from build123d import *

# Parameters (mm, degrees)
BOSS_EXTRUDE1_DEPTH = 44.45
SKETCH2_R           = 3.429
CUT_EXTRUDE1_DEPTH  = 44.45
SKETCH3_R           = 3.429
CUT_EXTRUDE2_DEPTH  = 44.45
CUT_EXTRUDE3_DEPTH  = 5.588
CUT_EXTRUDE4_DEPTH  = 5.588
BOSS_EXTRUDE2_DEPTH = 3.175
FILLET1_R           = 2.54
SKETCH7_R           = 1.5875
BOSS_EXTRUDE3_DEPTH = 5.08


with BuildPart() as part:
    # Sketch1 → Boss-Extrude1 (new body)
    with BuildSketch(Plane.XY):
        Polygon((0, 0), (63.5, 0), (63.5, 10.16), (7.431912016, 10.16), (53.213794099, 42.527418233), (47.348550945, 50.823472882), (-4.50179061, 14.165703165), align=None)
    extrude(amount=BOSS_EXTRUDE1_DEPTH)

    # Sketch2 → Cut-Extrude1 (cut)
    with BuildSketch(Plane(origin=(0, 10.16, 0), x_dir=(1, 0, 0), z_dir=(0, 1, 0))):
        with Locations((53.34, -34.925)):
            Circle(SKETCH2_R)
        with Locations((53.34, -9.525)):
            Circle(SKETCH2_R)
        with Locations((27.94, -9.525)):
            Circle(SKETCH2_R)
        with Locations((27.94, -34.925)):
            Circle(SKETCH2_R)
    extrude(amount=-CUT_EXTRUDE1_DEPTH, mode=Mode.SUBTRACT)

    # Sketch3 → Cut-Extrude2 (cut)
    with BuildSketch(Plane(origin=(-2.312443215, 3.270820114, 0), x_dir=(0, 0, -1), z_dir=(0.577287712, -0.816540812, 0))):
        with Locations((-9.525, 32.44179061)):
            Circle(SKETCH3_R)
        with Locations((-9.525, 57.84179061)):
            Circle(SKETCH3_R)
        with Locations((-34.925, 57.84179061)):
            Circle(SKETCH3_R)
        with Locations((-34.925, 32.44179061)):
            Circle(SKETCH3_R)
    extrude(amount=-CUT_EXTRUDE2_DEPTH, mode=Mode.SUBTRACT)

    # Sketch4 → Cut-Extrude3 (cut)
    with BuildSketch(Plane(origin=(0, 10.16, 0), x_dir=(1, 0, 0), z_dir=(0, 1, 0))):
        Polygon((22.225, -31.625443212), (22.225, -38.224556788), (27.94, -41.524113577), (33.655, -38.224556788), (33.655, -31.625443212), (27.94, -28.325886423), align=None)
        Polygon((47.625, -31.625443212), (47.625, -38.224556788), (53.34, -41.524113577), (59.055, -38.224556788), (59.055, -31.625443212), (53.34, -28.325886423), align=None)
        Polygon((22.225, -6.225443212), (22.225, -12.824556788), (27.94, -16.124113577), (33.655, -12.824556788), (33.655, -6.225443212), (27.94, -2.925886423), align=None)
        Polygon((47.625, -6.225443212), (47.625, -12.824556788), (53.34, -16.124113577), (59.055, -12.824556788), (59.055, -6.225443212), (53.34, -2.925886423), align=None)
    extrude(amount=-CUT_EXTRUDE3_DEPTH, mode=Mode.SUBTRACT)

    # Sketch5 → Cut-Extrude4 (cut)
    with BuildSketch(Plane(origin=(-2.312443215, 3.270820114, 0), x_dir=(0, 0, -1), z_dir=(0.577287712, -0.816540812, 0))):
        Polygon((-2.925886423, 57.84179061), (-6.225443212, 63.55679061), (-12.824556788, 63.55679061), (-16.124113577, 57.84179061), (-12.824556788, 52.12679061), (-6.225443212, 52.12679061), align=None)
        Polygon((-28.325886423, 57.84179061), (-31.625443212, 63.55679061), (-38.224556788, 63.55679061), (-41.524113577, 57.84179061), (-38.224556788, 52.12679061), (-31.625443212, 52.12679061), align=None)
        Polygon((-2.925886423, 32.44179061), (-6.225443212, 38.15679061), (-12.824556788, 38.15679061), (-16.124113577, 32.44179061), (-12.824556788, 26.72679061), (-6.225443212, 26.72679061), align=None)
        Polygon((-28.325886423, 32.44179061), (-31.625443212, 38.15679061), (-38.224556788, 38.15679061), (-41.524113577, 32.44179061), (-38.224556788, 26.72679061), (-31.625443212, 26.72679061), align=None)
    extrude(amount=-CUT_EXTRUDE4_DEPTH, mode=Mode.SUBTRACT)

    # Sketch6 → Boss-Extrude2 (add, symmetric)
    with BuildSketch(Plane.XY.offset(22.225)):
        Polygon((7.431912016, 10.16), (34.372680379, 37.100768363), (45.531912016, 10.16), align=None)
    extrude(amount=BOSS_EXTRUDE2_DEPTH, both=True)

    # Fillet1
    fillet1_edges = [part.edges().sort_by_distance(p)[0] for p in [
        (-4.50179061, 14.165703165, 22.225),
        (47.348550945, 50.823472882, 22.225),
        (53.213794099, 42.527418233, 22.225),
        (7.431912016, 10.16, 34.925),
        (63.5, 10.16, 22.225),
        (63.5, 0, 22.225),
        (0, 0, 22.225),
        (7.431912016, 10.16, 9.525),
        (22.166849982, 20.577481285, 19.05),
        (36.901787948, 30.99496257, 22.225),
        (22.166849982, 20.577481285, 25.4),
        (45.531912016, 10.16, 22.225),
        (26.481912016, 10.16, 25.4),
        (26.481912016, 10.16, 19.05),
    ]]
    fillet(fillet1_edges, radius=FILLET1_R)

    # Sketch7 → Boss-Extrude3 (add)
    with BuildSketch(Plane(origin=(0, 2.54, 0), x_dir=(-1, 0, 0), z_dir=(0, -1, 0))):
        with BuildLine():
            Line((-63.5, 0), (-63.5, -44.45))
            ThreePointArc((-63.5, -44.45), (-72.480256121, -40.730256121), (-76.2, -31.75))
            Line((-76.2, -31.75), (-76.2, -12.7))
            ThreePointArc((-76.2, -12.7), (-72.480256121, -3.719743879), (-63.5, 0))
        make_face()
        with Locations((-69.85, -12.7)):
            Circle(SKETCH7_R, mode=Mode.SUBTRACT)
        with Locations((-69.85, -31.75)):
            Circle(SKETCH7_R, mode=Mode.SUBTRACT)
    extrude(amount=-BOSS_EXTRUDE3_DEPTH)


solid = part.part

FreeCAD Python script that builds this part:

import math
import FreeCAD as App
import Part
import Sketcher
Q = App.Units.Quantity


def edges_at(feature, points):
    """Names of the edges that pass closest to the given points."""
    edges = feature.Shape.Edges
    near = lambda p: min(range(len(edges)), key=lambda i: edges[i].distToShape(Part.Vertex(*p))[0])
    return sorted({f"Edge{near(p) + 1}" for p in points})

doc = App.newDocument("Part")
body = doc.addObject("PartDesign::Body", "Body")

sketch1 = body.newObject("Sketcher::SketchObject", "Sketch")
sketch1.AttachmentSupport = (doc.getObject("XY_Plane"), [""])
sketch1.MapMode = "FlatFace"
sketch1.addGeometry([
    Part.LineSegment(App.Vector(0, 0, 0), App.Vector(63.5, 0, 0)),
    Part.LineSegment(App.Vector(63.5, 0, 0), App.Vector(63.5, 10.16, 0)),
    Part.LineSegment(App.Vector(63.5, 10.16, 0), App.Vector(7.431912, 10.16, 0)),
    Part.LineSegment(App.Vector(7.431912, 10.16, 0), App.Vector(53.213794, 42.527418, 0)),
    Part.LineSegment(App.Vector(53.213794, 42.527418, 0), App.Vector(47.348551, 50.823473, 0)),
    Part.LineSegment(App.Vector(47.348551, 50.823473, 0), App.Vector(-4.501791, 14.165703, 0)),
    Part.LineSegment(App.Vector(-4.501791, 14.165703, 0), App.Vector(0, 0, 0)),
], False)
sketch1.addConstraint([
    Sketcher.Constraint("Coincident", 0, 2, 1, 1),
    Sketcher.Constraint("Coincident", 1, 2, 2, 1),
    Sketcher.Constraint("Coincident", 2, 2, 3, 1),
    Sketcher.Constraint("Coincident", 3, 2, 4, 1),
    Sketcher.Constraint("Coincident", 4, 2, 5, 1),
    Sketcher.Constraint("Coincident", 5, 2, 6, 1),
    Sketcher.Constraint("Coincident", 6, 2, 0, 1),
    Sketcher.Constraint("Horizontal", 0),
    Sketcher.Constraint("Vertical", 1),
    Sketcher.Constraint("Horizontal", 2),
    Sketcher.Constraint("Coincident", 6, 2, -1, 1),
    Sketcher.Constraint("Perpendicular", 3, 4),
    Sketcher.Constraint("Perpendicular", 4, 5),
    Sketcher.Constraint("DistanceX", 0, 1, 0, 2, Q("2.5 in")),
    Sketcher.Constraint("DistanceY", 1, 1, 1, 2, Q("0.4 in")),
    Sketcher.Constraint("Distance", 4, Q("0.4 in")),
    Sketcher.Constraint("Distance", 5, Q("2.5 in")),
    Sketcher.Constraint("Angle", 3, Q("35.26 deg")),
    Sketcher.Constraint("Angle", 6, Q("-72.37 deg")),
    Sketcher.Constraint("DistanceX", 2, 2, 2, 1, Q("56.068088 mm")),
])
pad1 = body.newObject("PartDesign::Pad", "Pad")
pad1.Profile = sketch1
pad1.Length = Q("1.75 in")

sketch2 = body.newObject("Sketcher::SketchObject", "Sketch001")
sketch2.AttachmentSupport = (doc.getObject("XZ_Plane"), [""])
sketch2.MapMode = "FlatFace"
sketch2.AttachmentOffset = App.Placement(App.Vector(0, 0, -0.4 * 25.4), App.Rotation())
sketch2.addGeometry([
    Part.Circle(App.Vector(53.34, 34.925, 0), App.Vector(0, 0, 1), 3.429),
    Part.Circle(App.Vector(53.34, 9.525, 0), App.Vector(0, 0, 1), 3.429),
    Part.Circle(App.Vector(27.94, 9.525, 0), App.Vector(0, 0, 1), 3.429),
    Part.Circle(App.Vector(27.94, 34.925, 0), App.Vector(0, 0, 1), 3.429),
], False)
sketch2.addConstraint([
    Sketcher.Constraint("Equal", 0, 1),
    Sketcher.Constraint("Equal", 1, 2),
    Sketcher.Constraint("Equal", 2, 3),
    Sketcher.Constraint("Horizontal", 1, 3, 2, 3),
    Sketcher.Constraint("Horizontal", 0, 3, 3, 3),
    Sketcher.Constraint("Vertical", 0, 3, 1, 3),
    Sketcher.Constraint("Vertical", 2, 3, 3, 3),
    Sketcher.Constraint("Diameter", 0, Q("0.27 in")),
    Sketcher.Constraint("DistanceY", 1, 3, 0, 3, Q("1 in")),
    Sketcher.Constraint("DistanceX", 2, 3, 1, 3, Q("1 in")),
    Sketcher.Constraint("DistanceX", -1, 1, 0, 3, Q("2.1 in")),
    Sketcher.Constraint("DistanceY", -1, 1, 0, 3, Q("1.375 in")),
])
pocket1 = body.newObject("PartDesign::Pocket", "Pocket")
pocket1.Profile = sketch2
pocket1.Length = Q("1.75 in")
pocket1.Reversed = True

sketch3 = body.newObject("Sketcher::SketchObject", "Sketch002")
sketch3.Placement = App.Placement(App.Vector(-2.312443, 3.27082, 0), App.Rotation(App.Vector(0, 0, -1), App.Vector(0.816540812, 0.577287712, 0), App.Vector(0.577287712, -0.816540812, 0), "ZXY"))
sketch3.addGeometry([
    Part.Circle(App.Vector(-9.525, 32.441791, 0), App.Vector(0, 0, 1), 3.429),
    Part.Circle(App.Vector(-9.525, 57.841791, 0), App.Vector(0, 0, 1), 3.429),
    Part.Circle(App.Vector(-34.925, 57.841791, 0), App.Vector(0, 0, 1), 3.429),
    Part.Circle(App.Vector(-34.925, 32.441791, 0), App.Vector(0, 0, 1), 3.429),
], False)
sketch3.addConstraint([
    Sketcher.Constraint("Equal", 0, 1),
    Sketcher.Constraint("Equal", 1, 2),
    Sketcher.Constraint("Equal", 2, 3),
    Sketcher.Constraint("Horizontal", 1, 3, 2, 3),
    Sketcher.Constraint("Horizontal", 0, 3, 3, 3),
    Sketcher.Constraint("Vertical", 0, 3, 1, 3),
    Sketcher.Constraint("Vertical", 2, 3, 3, 3),
    Sketcher.Constraint("Diameter", 0, Q("0.27 in")),
    Sketcher.Constraint("DistanceY", 0, 3, 1, 3, Q("1 in")),
    Sketcher.Constraint("DistanceX", 2, 3, 1, 3, Q("1 in")),
    Sketcher.Constraint("DistanceX", 0, 3, -1, 1, Q("0.375 in")),
    Sketcher.Constraint("DistanceY", -1, 1, 0, 3, Q("32.441791 mm")),
])
pocket2 = body.newObject("PartDesign::Pocket", "Pocket001")
pocket2.Profile = sketch3
pocket2.Length = Q("1.75 in")

sketch4 = body.newObject("Sketcher::SketchObject", "Sketch003")
sketch4.AttachmentSupport = (doc.getObject("XZ_Plane"), [""])
sketch4.MapMode = "FlatFace"
sketch4.AttachmentOffset = App.Placement(App.Vector(0, 0, -0.4 * 25.4), App.Rotation())
sketch4.addGeometry([
    Part.LineSegment(App.Vector(22.225, 31.625443, 0), App.Vector(22.225, 38.224557, 0)),
    Part.LineSegment(App.Vector(22.225, 38.224557, 0), App.Vector(27.94, 41.524114, 0)),
    Part.LineSegment(App.Vector(27.94, 41.524114, 0), App.Vector(33.655, 38.224557, 0)),
    Part.LineSegment(App.Vector(33.655, 38.224557, 0), App.Vector(33.655, 31.625443, 0)),
    Part.LineSegment(App.Vector(33.655, 31.625443, 0), App.Vector(27.94, 28.325886, 0)),
    Part.LineSegment(App.Vector(27.94, 28.325886, 0), App.Vector(22.225, 31.625443, 0)),
    Part.LineSegment(App.Vector(47.625, 31.625443, 0), App.Vector(47.625, 38.224557, 0)),
    Part.LineSegment(App.Vector(47.625, 38.224557, 0), App.Vector(53.34, 41.524114, 0)),
    Part.LineSegment(App.Vector(53.34, 41.524114, 0), App.Vector(59.055, 38.224557, 0)),
    Part.LineSegment(App.Vector(59.055, 38.224557, 0), App.Vector(59.055, 31.625443, 0)),
    Part.LineSegment(App.Vector(59.055, 31.625443, 0), App.Vector(53.34, 28.325886, 0)),
    Part.LineSegment(App.Vector(53.34, 28.325886, 0), App.Vector(47.625, 31.625443, 0)),
    Part.LineSegment(App.Vector(22.225, 6.225443, 0), App.Vector(22.225, 12.824557, 0)),
    Part.LineSegment(App.Vector(22.225, 12.824557, 0), App.Vector(27.94, 16.124114, 0)),
    Part.LineSegment(App.Vector(27.94, 16.124114, 0), App.Vector(33.655, 12.824557, 0)),
    Part.LineSegment(App.Vector(33.655, 12.824557, 0), App.Vector(33.655, 6.225443, 0)),
    Part.LineSegment(App.Vector(33.655, 6.225443, 0), App.Vector(27.94, 2.925886, 0)),
    Part.LineSegment(App.Vector(27.94, 2.925886, 0), App.Vector(22.225, 6.225443, 0)),
    Part.LineSegment(App.Vector(47.625, 6.225443, 0), App.Vector(47.625, 12.824557, 0)),
    Part.LineSegment(App.Vector(47.625, 12.824557, 0), App.Vector(53.34, 16.124114, 0)),
    Part.LineSegment(App.Vector(53.34, 16.124114, 0), App.Vector(59.055, 12.824557, 0)),
    Part.LineSegment(App.Vector(59.055, 12.824557, 0), App.Vector(59.055, 6.225443, 0)),
    Part.LineSegment(App.Vector(59.055, 6.225443, 0), App.Vector(53.34, 2.925886, 0)),
    Part.LineSegment(App.Vector(53.34, 2.925886, 0), App.Vector(47.625, 6.225443, 0)),
], False)
sketch4.addConstraint([
    Sketcher.Constraint("Coincident", 0, 2, 1, 1),
    Sketcher.Constraint("Coincident", 1, 2, 2, 1),
    Sketcher.Constraint("Coincident", 2, 2, 3, 1),
    Sketcher.Constraint("Coincident", 3, 2, 4, 1),
    Sketcher.Constraint("Coincident", 4, 2, 5, 1),
    Sketcher.Constraint("Coincident", 5, 2, 0, 1),
    Sketcher.Constraint("Coincident", 6, 2, 7, 1),
    Sketcher.Constraint("Coincident", 7, 2, 8, 1),
    Sketcher.Constraint("Coincident", 8, 2, 9, 1),
    Sketcher.Constraint("Coincident", 9, 2, 10, 1),
    Sketcher.Constraint("Coincident", 10, 2, 11, 1),
    Sketcher.Constraint("Coincident", 11, 2, 6, 1),
    Sketcher.Constraint("Coincident", 12, 2, 13, 1),
    Sketcher.Constraint("Coincident", 13, 2, 14, 1),
    Sketcher.Constraint("Coincident", 14, 2, 15, 1),
    Sketcher.Constraint("Coincident", 15, 2, 16, 1),
    Sketcher.Constraint("Coincident", 16, 2, 17, 1),
    Sketcher.Constraint("Coincident", 17, 2, 12, 1),
    Sketcher.Constraint("Coincident", 18, 2, 19, 1),
    Sketcher.Constraint("Coincident", 19, 2, 20, 1),
    Sketcher.Constraint("Coincident", 20, 2, 21, 1),
    Sketcher.Constraint("Coincident", 21, 2, 22, 1),
    Sketcher.Constraint("Coincident", 22, 2, 23, 1),
    Sketcher.Constraint("Coincident", 23, 2, 18, 1),
    Sketcher.Constraint("Vertical", 0),
    Sketcher.Constraint("Vertical", 3),
    Sketcher.Constraint("Vertical", 6),
    Sketcher.Constraint("Vertical", 9),
    Sketcher.Constraint("Vertical", 12),
    Sketcher.Constraint("Vertical", 15),
    Sketcher.Constraint("Vertical", 18),
    Sketcher.Constraint("Vertical", 21),
    Sketcher.Constraint("Parallel", 1, 4),
    Sketcher.Constraint("Parallel", 2, 5),
    Sketcher.Constraint("Parallel", 4, 7),
    Sketcher.Constraint("Parallel", 5, 8),
    Sketcher.Constraint("Parallel", 7, 10),
    Sketcher.Constraint("Parallel", 8, 11),
    Sketcher.Constraint("Parallel", 10, 13),
    Sketcher.Constraint("Parallel", 11, 14),
    Sketcher.Constraint("Parallel", 13, 16),
    Sketcher.Constraint("Parallel", 14, 17),
    Sketcher.Constraint("Parallel", 16, 19),
    Sketcher.Constraint("Parallel", 17, 20),
    Sketcher.Constraint("Parallel", 19, 22),
    Sketcher.Constraint("Parallel", 20, 23),
    Sketcher.Constraint("Horizontal", 0, 2, 2, 2),
    Sketcher.Constraint("Horizontal", 3, 2, 5, 2),
    Sketcher.Constraint("Horizontal", 2, 2, 6, 2),
    Sketcher.Constraint("Horizontal", 1, 2, 7, 2),
    Sketcher.Constraint("Horizontal", 6, 2, 8, 2),
    Sketcher.Constraint("Horizontal", 5, 2, 9, 2),
    Sketcher.Constraint("Horizontal", 4, 2, 10, 2),
    Sketcher.Constraint("Horizontal", 12, 2, 14, 2),
    Sketcher.Constraint("Horizontal", 15, 2, 17, 2),
    Sketcher.Constraint("Horizontal", 14, 2, 18, 2),
    Sketcher.Constraint("Horizontal", 13, 2, 19, 2),
    Sketcher.Constraint("Horizontal", 18, 2, 20, 2),
    Sketcher.Constraint("Horizontal", 17, 2, 21, 2),
    Sketcher.Constraint("Horizontal", 16, 2, 22, 2),
    Sketcher.Constraint("Vertical", 1, 2, 4, 2),
    Sketcher.Constraint("Vertical", 5, 2, 12, 2),
    Sketcher.Constraint("Vertical", 4, 2, 13, 2),
    Sketcher.Constraint("Vertical", 11, 2, 18, 2),
    Sketcher.Constraint("Equal", 9, 12),
    Sketcher.Constraint("Angle", 1, Q("30 deg")),
    Sketcher.Constraint("DistanceX", 0, 2, 6, 2, Q("1 in")),
    Sketcher.Constraint("DistanceY", 12, 2, 0, 2, Q("1 in")),
    Sketcher.Constraint("DistanceX", -1, 1, 1, 2, Q("1.1 in")),
    Sketcher.Constraint("DistanceX", 0, 2, 2, 2, Q("0.45 in")),
    Sketcher.Constraint("DistanceY", 0, 1, 0, 2, Q("6.599114 mm")),
    Sketcher.Constraint("DistanceY", -1, 1, 0, 2, Q("38.224557 mm")),
])
pocket3 = body.newObject("PartDesign::Pocket", "Pocket002")
pocket3.Profile = sketch4
pocket3.Length = Q("0.22 in")
pocket3.Reversed = True

sketch5 = body.newObject("Sketcher::SketchObject", "Sketch004")
sketch5.Placement = App.Placement(App.Vector(-2.312443, 3.27082, 0), App.Rotation(App.Vector(0, 0, -1), App.Vector(0.816540812, 0.577287712, 0), App.Vector(0.577287712, -0.816540812, 0), "ZXY"))
sketch5.addGeometry([
    Part.LineSegment(App.Vector(-2.925886, 57.841791, 0), App.Vector(-6.225443, 63.556791, 0)),
    Part.LineSegment(App.Vector(-6.225443, 63.556791, 0), App.Vector(-12.824557, 63.556791, 0)),
    Part.LineSegment(App.Vector(-12.824557, 63.556791, 0), App.Vector(-16.124114, 57.841791, 0)),
    Part.LineSegment(App.Vector(-16.124114, 57.841791, 0), App.Vector(-12.824557, 52.126791, 0)),
    Part.LineSegment(App.Vector(-12.824557, 52.126791, 0), App.Vector(-6.225443, 52.126791, 0)),
    Part.LineSegment(App.Vector(-6.225443, 52.126791, 0), App.Vector(-2.925886, 57.841791, 0)),
    Part.LineSegment(App.Vector(-28.325886, 57.841791, 0), App.Vector(-31.625443, 63.556791, 0)),
    Part.LineSegment(App.Vector(-31.625443, 63.556791, 0), App.Vector(-38.224557, 63.556791, 0)),
    Part.LineSegment(App.Vector(-38.224557, 63.556791, 0), App.Vector(-41.524114, 57.841791, 0)),
    Part.LineSegment(App.Vector(-41.524114, 57.841791, 0), App.Vector(-38.224557, 52.126791, 0)),
    Part.LineSegment(App.Vector(-38.224557, 52.126791, 0), App.Vector(-31.625443, 52.126791, 0)),
    Part.LineSegment(App.Vector(-31.625443, 52.126791, 0), App.Vector(-28.325886, 57.841791, 0)),
    Part.LineSegment(App.Vector(-2.925886, 32.441791, 0), App.Vector(-6.225443, 38.156791, 0)),
    Part.LineSegment(App.Vector(-6.225443, 38.156791, 0), App.Vector(-12.824557, 38.156791, 0)),
    Part.LineSegment(App.Vector(-12.824557, 38.156791, 0), App.Vector(-16.124114, 32.441791, 0)),
    Part.LineSegment(App.Vector(-16.124114, 32.441791, 0), App.Vector(-12.824557, 26.726791, 0)),
    Part.LineSegment(App.Vector(-12.824557, 26.726791, 0), App.Vector(-6.225443, 26.726791, 0)),
    Part.LineSegment(App.Vector(-6.225443, 26.726791, 0), App.Vector(-2.925886, 32.441791, 0)),
    Part.LineSegment(App.Vector(-28.325886, 32.441791, 0), App.Vector(-31.625443, 38.156791, 0)),
    Part.LineSegment(App.Vector(-31.625443, 38.156791, 0), App.Vector(-38.224557, 38.156791, 0)),
    Part.LineSegment(App.Vector(-38.224557, 38.156791, 0), App.Vector(-41.524114, 32.441791, 0)),
    Part.LineSegment(App.Vector(-41.524114, 32.441791, 0), App.Vector(-38.224557, 26.726791, 0)),
    Part.LineSegment(App.Vector(-38.224557, 26.726791, 0), App.Vector(-31.625443, 26.726791, 0)),
    Part.LineSegment(App.Vector(-31.625443, 26.726791, 0), App.Vector(-28.325886, 32.441791, 0)),
], False)
sketch5.addConstraint([
    Sketcher.Constraint("Coincident", 0, 2, 1, 1),
    Sketcher.Constraint("Coincident", 1, 2, 2, 1),
    Sketcher.Constraint("Coincident", 2, 2, 3, 1),
    Sketcher.Constraint("Coincident", 3, 2, 4, 1),
    Sketcher.Constraint("Coincident", 4, 2, 5, 1),
    Sketcher.Constraint("Coincident", 5, 2, 0, 1),
    Sketcher.Constraint("Coincident", 6, 2, 7, 1),
    Sketcher.Constraint("Coincident", 7, 2, 8, 1),
    Sketcher.Constraint("Coincident", 8, 2, 9, 1),
    Sketcher.Constraint("Coincident", 9, 2, 10, 1),
    Sketcher.Constraint("Coincident", 10, 2, 11, 1),
    Sketcher.Constraint("Coincident", 11, 2, 6, 1),
    Sketcher.Constraint("Coincident", 12, 2, 13, 1),
    Sketcher.Constraint("Coincident", 13, 2, 14, 1),
    Sketcher.Constraint("Coincident", 14, 2, 15, 1),
    Sketcher.Constraint("Coincident", 15, 2, 16, 1),
    Sketcher.Constraint("Coincident", 16, 2, 17, 1),
    Sketcher.Constraint("Coincident", 17, 2, 12, 1),
    Sketcher.Constraint("Coincident", 18, 2, 19, 1),
    Sketcher.Constraint("Coincident", 19, 2, 20, 1),
    Sketcher.Constraint("Coincident", 20, 2, 21, 1),
    Sketcher.Constraint("Coincident", 21, 2, 22, 1),
    Sketcher.Constraint("Coincident", 22, 2, 23, 1),
    Sketcher.Constraint("Coincident", 23, 2, 18, 1),
    Sketcher.Constraint("Horizontal", 1),
    Sketcher.Constraint("Horizontal", 4),
    Sketcher.Constraint("Horizontal", 7),
    Sketcher.Constraint("Horizontal", 10),
    Sketcher.Constraint("Horizontal", 13),
    Sketcher.Constraint("Horizontal", 16),
    Sketcher.Constraint("Horizontal", 19),
    Sketcher.Constraint("Horizontal", 22),
    Sketcher.Constraint("Parallel", 0, 3),
    Sketcher.Constraint("Parallel", 2, 5),
    Sketcher.Constraint("Parallel", 3, 6),
    Sketcher.Constraint("Parallel", 5, 8),
    Sketcher.Constraint("Parallel", 6, 9),
    Sketcher.Constraint("Parallel", 8, 11),
    Sketcher.Constraint("Parallel", 9, 12),
    Sketcher.Constraint("Parallel", 11, 14),
    Sketcher.Constraint("Parallel", 12, 15),
    Sketcher.Constraint("Parallel", 14, 17),
    Sketcher.Constraint("Parallel", 15, 18),
    Sketcher.Constraint("Parallel", 17, 20),
    Sketcher.Constraint("Parallel", 18, 21),
    Sketcher.Constraint("Parallel", 20, 23),
    Sketcher.Constraint("Horizontal", 2, 2, 5, 2),
    Sketcher.Constraint("Horizontal", 1, 2, 6, 2),
    Sketcher.Constraint("Horizontal", 5, 2, 8, 2),
    Sketcher.Constraint("Horizontal", 4, 2, 9, 2),
    Sketcher.Constraint("Horizontal", 8, 2, 11, 2),
    Sketcher.Constraint("Horizontal", 14, 2, 17, 2),
    Sketcher.Constraint("Horizontal", 13, 2, 18, 2),
    Sketcher.Constraint("Horizontal", 17, 2, 20, 2),
    Sketcher.Constraint("Horizontal", 16, 2, 21, 2),
    Sketcher.Constraint("Horizontal", 20, 2, 23, 2),
    Sketcher.Constraint("Vertical", 1, 2, 3, 2),
    Sketcher.Constraint("Vertical", 0, 2, 4, 2),
    Sketcher.Constraint("Vertical", 4, 2, 12, 2),
    Sketcher.Constraint("Vertical", 3, 2, 13, 2),
    Sketcher.Constraint("Vertical", 2, 2, 14, 2),
    Sketcher.Constraint("Vertical", 13, 2, 15, 2),
    Sketcher.Constraint("Vertical", 10, 2, 18, 2),
    Sketcher.Constraint("Vertical", 9, 2, 19, 2),
    Sketcher.Constraint("Equal", 4, 7),
    Sketcher.Constraint("Angle", 0, Q("120 deg")),
    Sketcher.Constraint("DistanceX", 6, 2, 0, 2, Q("1 in")),
    Sketcher.Constraint("DistanceY", 12, 2, 0, 2, Q("1 in")),
    Sketcher.Constraint("DistanceY", 3, 2, 1, 2, Q("0.45 in")),
    Sketcher.Constraint("DistanceX", 1, 2, 1, 1, Q("6.599114 mm")),
    Sketcher.Constraint("DistanceY", -1, 1, 0, 2, Q("63.556791 mm")),
    Sketcher.Constraint("DistanceX", 0, 2, -1, 1, Q("6.225443 mm")),
])
pocket4 = body.newObject("PartDesign::Pocket", "Pocket003")
pocket4.Profile = sketch5
pocket4.Length = Q("0.22 in")

sketch6 = body.newObject("Sketcher::SketchObject", "Sketch005")
sketch6.AttachmentSupport = (doc.getObject("XY_Plane"), [""])
sketch6.MapMode = "FlatFace"
sketch6.AttachmentOffset = App.Placement(App.Vector(0, 0, 0.875 * 25.4), App.Rotation())
sketch6.addGeometry([
    Part.LineSegment(App.Vector(34.37268, 37.100768, 0), App.Vector(7.431912, 10.16, 0)),
    Part.LineSegment(App.Vector(7.431912, 10.16, 0), App.Vector(45.531912, 10.16, 0)),
    Part.LineSegment(App.Vector(45.531912, 10.16, 0), App.Vector(34.37268, 37.100768, 0)),
], False)
sketch6.addConstraint([
    Sketcher.Constraint("Coincident", 0, 2, 1, 1),
    Sketcher.Constraint("Coincident", 1, 2, 2, 1),
    Sketcher.Constraint("Coincident", 2, 2, 0, 1),
    Sketcher.Constraint("Horizontal", 1),
    Sketcher.Constraint("DistanceX", 1, 1, 1, 2, Q("1.5 in")),
    Sketcher.Constraint("Angle", 0, Q("-135 deg")),
    Sketcher.Constraint("Distance", 0, Q("1.5 in")),
    Sketcher.Constraint("DistanceY", -1, 1, 0, 2, Q("0.4 in")),
    Sketcher.Constraint("DistanceX", -1, 1, 2, 2, Q("34.37268 mm")),
])
pad2 = body.newObject("PartDesign::Pad", "Pad001")
pad2.Profile = sketch6
pad2.Length = Q("0.25 in")
pad2.Midplane = True
doc.recompute()

fillet = body.newObject("PartDesign::Fillet", "Fillet")
fillet.Base = (pad2, edges_at(pad2, [
    (-4.502, 14.166, 22.225),
    (47.349, 50.823, 22.225),
    (53.214, 42.527, 22.225),
    (7.432, 10.16, 34.925),
    (63.5, 10.16, 22.225),
    (63.5, 0, 22.225),
    (0, 0, 22.225),
    (7.432, 10.16, 9.525),
    (22.167, 20.577, 19.05),
    (36.902, 30.995, 22.225),
    (22.167, 20.577, 25.4),
    (45.532, 10.16, 22.225),
    (26.482, 10.16, 25.4),
    (26.482, 10.16, 19.05),
]))
fillet.Radius = Q("0.1 in")

sketch7 = body.newObject("Sketcher::SketchObject", "Sketch006")
sketch7.AttachmentSupport = (doc.getObject("XZ_Plane"), [""])
sketch7.MapMode = "FlatFace"
sketch7.AttachmentOffset = App.Placement(App.Vector(0, 0, -0.1 * 25.4), App.Rotation())
sketch7.addGeometry([
    Part.LineSegment(App.Vector(63.5, 44.45, 0), App.Vector(63.5, 0, 0)),
    Part.ArcOfCircle(Part.Circle(App.Vector(63.5, 12.7, 0), App.Vector(0, 0, 1), 12.7), math.radians(-90), math.radians(0)),
    Part.LineSegment(App.Vector(76.2, 12.7, 0), App.Vector(76.2, 31.75, 0)),
    Part.ArcOfCircle(Part.Circle(App.Vector(63.5, 31.75, 0), App.Vector(0, 0, 1), 12.7), math.radians(0), math.radians(90)),
    Part.Circle(App.Vector(69.85, 31.75, 0), App.Vector(0, 0, 1), 1.5875),
    Part.Circle(App.Vector(69.85, 12.7, 0), App.Vector(0, 0, 1), 1.5875),
], False)
sketch7.addConstraint([
    Sketcher.Constraint("Coincident", 0, 2, 1, 1),
    Sketcher.Constraint("Tangent", 1, 2, 2, 1),
    Sketcher.Constraint("Tangent", 2, 2, 3, 1),
    Sketcher.Constraint("Coincident", 3, 2, 0, 1),
    Sketcher.Constraint("Vertical", 0),
    Sketcher.Constraint("Vertical", 2),
    Sketcher.Constraint("Equal", 1, 3),
    Sketcher.Constraint("Equal", 4, 5),
    Sketcher.Constraint("PointOnObject", 0, 2, -1),
    Sketcher.Constraint("Horizontal", 3, 3, 4, 3),
    Sketcher.Constraint("Horizontal", 1, 3, 5, 3),
    Sketcher.Constraint("Vertical", 4, 3, 5, 3),
    Sketcher.Constraint("Vertical", 3, 3, 0, 2),
    Sketcher.Constraint("Radius", 1, Q("0.5 in")),
    Sketcher.Constraint("Diameter", 4, Q("0.125 in")),
    Sketcher.Constraint("DistanceX", -1, 1, 1, 2, Q("3 in")),
    Sketcher.Constraint("DistanceY", 0, 2, 0, 1, Q("1.75 in")),
    Sketcher.Constraint("DistanceX", -1, 1, 4, 3, Q("2.75 in")),
])
pad3 = body.newObject("PartDesign::Pad", "Pad002")
pad3.Profile = sketch7
pad3.Length = Q("0.2 in")
pad3.Reversed = True

doc.recompute()
